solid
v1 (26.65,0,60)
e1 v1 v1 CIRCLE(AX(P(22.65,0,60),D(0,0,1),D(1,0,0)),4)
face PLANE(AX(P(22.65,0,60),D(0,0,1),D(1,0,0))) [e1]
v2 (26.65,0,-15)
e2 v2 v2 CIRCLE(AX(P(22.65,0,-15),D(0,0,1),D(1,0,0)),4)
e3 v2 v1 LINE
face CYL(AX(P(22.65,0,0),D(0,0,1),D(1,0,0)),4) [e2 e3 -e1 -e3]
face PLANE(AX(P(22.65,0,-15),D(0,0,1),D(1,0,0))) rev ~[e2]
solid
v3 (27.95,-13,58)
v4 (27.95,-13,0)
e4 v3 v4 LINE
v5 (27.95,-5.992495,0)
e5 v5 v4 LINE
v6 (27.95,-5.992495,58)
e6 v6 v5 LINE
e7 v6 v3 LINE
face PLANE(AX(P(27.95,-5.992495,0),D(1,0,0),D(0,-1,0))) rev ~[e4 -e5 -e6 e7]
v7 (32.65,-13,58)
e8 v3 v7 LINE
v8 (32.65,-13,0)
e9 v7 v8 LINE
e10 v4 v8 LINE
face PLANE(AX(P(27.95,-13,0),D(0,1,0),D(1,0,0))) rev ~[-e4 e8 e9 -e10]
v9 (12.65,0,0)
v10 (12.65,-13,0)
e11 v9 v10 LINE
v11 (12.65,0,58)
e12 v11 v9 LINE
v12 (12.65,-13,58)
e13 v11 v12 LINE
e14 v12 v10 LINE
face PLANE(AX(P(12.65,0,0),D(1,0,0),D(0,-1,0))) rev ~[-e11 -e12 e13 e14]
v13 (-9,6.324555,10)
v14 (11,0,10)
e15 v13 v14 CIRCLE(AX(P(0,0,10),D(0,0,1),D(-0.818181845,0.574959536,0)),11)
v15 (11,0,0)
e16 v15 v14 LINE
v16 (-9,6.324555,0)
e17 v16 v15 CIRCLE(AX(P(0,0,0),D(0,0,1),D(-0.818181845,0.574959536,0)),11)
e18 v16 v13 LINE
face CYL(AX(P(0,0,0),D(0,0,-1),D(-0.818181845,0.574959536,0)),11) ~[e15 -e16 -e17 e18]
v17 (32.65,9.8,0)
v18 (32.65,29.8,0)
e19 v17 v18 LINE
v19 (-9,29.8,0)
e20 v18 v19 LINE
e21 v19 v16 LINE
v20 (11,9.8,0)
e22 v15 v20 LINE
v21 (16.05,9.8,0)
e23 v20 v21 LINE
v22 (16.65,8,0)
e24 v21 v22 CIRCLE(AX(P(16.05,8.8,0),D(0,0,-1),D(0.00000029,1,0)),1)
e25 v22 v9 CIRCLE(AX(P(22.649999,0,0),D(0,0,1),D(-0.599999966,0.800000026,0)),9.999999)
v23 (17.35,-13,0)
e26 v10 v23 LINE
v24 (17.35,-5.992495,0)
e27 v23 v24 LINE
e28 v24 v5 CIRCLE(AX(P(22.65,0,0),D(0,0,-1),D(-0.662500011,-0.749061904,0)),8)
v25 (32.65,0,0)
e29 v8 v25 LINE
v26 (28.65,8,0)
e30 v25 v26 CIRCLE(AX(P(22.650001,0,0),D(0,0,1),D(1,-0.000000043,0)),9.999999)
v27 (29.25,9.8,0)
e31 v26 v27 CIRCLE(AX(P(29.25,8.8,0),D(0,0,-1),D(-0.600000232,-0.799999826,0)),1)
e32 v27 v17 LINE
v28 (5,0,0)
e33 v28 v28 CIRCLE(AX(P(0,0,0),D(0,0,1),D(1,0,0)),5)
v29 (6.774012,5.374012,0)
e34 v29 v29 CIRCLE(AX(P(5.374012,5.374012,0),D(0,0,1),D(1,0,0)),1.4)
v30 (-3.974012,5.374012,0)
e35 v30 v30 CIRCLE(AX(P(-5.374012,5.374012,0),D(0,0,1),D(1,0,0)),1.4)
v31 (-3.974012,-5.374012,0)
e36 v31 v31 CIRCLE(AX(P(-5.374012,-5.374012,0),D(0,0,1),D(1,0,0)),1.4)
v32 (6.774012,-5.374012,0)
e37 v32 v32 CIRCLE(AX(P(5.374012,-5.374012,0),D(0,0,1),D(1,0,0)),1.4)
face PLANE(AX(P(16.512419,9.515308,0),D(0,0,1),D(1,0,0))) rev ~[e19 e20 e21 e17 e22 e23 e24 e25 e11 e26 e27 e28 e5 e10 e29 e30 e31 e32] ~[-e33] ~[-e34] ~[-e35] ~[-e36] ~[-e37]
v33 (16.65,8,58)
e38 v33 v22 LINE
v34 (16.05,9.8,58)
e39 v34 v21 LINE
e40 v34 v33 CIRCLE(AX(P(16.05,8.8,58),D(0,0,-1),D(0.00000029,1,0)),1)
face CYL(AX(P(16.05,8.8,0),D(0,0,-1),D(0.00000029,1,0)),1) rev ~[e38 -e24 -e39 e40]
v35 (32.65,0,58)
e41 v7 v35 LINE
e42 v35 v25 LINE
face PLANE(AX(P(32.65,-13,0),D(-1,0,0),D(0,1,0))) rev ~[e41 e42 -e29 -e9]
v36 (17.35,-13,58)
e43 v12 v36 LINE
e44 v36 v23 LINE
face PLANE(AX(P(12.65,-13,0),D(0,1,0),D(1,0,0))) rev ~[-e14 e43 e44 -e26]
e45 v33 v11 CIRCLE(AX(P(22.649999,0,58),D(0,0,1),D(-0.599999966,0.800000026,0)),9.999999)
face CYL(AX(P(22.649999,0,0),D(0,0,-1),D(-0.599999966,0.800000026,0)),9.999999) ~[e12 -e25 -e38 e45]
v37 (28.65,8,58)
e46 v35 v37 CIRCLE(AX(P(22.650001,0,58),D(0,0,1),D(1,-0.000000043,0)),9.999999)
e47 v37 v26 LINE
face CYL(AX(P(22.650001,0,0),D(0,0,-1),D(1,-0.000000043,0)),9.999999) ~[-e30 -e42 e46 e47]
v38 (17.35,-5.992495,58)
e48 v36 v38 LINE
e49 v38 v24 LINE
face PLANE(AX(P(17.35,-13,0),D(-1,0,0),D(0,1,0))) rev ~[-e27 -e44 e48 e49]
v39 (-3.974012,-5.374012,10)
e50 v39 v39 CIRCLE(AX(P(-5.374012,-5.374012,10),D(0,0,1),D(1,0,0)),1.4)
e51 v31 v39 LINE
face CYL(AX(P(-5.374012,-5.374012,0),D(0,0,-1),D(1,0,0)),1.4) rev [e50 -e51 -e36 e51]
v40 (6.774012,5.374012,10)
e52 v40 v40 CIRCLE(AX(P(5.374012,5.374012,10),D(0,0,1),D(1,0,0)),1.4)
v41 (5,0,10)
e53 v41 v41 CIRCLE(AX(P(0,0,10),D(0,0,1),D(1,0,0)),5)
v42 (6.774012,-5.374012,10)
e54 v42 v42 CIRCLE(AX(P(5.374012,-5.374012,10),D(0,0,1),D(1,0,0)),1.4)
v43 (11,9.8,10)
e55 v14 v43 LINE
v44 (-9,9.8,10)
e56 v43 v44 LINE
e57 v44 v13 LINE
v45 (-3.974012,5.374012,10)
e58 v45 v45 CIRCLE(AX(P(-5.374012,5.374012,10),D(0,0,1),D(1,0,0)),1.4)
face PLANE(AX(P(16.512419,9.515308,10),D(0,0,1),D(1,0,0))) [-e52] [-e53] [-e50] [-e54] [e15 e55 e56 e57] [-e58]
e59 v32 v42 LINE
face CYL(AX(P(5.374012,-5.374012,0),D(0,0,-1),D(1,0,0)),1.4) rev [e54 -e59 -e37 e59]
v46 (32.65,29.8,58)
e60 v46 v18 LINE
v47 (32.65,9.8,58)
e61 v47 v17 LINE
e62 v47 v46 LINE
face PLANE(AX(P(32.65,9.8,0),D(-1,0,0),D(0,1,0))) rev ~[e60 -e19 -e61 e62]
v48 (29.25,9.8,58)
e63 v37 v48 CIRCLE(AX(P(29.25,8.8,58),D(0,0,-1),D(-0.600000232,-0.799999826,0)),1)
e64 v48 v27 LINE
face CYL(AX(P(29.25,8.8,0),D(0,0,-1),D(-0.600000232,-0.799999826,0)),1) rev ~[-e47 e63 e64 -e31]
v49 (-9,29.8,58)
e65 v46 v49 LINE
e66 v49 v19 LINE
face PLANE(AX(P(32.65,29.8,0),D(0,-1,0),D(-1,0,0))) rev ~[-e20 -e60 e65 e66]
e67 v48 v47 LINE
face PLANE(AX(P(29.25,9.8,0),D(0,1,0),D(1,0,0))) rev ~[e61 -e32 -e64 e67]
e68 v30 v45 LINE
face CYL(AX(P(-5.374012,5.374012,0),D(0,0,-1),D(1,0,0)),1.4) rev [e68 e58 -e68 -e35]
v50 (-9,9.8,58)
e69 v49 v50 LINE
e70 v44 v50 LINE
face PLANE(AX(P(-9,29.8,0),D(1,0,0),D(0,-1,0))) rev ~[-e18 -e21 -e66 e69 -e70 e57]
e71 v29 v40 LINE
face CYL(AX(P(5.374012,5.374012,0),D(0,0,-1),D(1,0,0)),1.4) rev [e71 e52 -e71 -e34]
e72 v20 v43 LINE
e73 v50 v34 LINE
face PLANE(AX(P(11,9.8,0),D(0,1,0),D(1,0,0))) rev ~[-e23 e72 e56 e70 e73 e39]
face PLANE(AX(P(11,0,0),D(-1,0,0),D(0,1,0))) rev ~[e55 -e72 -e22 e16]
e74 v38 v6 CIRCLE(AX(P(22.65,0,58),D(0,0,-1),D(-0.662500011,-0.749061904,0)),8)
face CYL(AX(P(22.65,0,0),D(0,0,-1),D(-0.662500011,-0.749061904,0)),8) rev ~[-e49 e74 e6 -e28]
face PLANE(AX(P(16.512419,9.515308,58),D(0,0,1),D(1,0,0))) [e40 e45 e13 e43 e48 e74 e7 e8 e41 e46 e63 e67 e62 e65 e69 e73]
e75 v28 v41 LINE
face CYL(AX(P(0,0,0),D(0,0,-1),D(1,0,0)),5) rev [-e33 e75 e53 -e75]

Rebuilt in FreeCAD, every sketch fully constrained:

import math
import FreeCAD as App
import Part
import Sketcher

doc = App.newDocument("Part")
params = doc.addObject("Spreadsheet::Sheet", "Params")
for row, (alias, value) in enumerate([
    ("sketch1_diameter", "10 mm"),
    ("sketch1_radius", "11 mm"),
    ("sketch1_radius2", "1 mm"),
    ("sketch1_radius3", "9.999999 mm"),
    ("sketch1_radius4", "8 mm"),
    ("pad1_length", "10 mm"),
    ("sketch2_radius", "1 mm"),
    ("sketch2_radius2", "9.999999 mm"),
    ("sketch2_radius3", "8 mm"),
    ("sketch2_height", "20 mm"),
    ("sketch2_height2", "13 mm"),
    ("pad2_length", "58 mm"),
    ("sketch3_diameter", "8 mm"),
    ("pad3_length", "60 mm"),
    ("pad3_length2", "15 mm"),
], start=1):
    params.set(f"A{row}", alias)
    params.set(f"B{row}", "=" + value)
    params.setAlias(f"B{row}", alias)

body = doc.addObject("PartDesign::Body", "Body")

sketch1 = body.newObject("Sketcher::SketchObject", "Sketch")
sketch1.AttachmentSupport = (doc.getObject("XY_Plane"), [""])
sketch1.MapMode = "FlatFace"
sketch1.addGeometry([
    Part.LineSegment(App.Vector(-9, 29.8, 0), App.Vector(-9, 6.324555, 0)),
    Part.ArcOfCircle(Part.Circle(App.Vector(0, 0, 0), App.Vector(0, 0, 1), 11), math.radians(144.903201), math.radians(359.999999)),
    Part.LineSegment(App.Vector(11, 0, 0), App.Vector(11, 9.8, 0)),
    Part.LineSegment(App.Vector(11, 9.8, 0), App.Vector(16.05, 9.8, 0)),
    Part.ArcOfCircle(Part.Circle(App.Vector(16.05, 8.8, 0), App.Vector(0, 0, 1), 1), math.radians(-53.130086), math.radians(89.999983)),
    Part.ArcOfCircle(Part.Circle(App.Vector(22.649999, 0, 0), App.Vector(0, 0, 1), 9.999999), math.radians(126.869895), math.radians(180.000002)),
    Part.LineSegment(App.Vector(12.65, 0, 0), App.Vector(12.65, -13, 0)),
    Part.LineSegment(App.Vector(12.65, -13, 0), App.Vector(17.35, -13, 0)),
    Part.LineSegment(App.Vector(17.35, -13, 0), App.Vector(17.35, -5.992495, 0)),
    Part.ArcOfCircle(Part.Circle(App.Vector(22.65, 0, 0), App.Vector(0, 0, 1), 8), math.radians(-48.509182), math.radians(228.509182)),
    Part.LineSegment(App.Vector(27.95, -5.992495, 0), App.Vector(27.95, -13, 0)),
    Part.LineSegment(App.Vector(27.95, -13, 0), App.Vector(32.65, -13, 0)),
    Part.LineSegment(App.Vector(32.65, -13, 0), App.Vector(32.65, 0, 0)),
    Part.ArcOfCircle(Part.Circle(App.Vector(22.650001, 0, 0), App.Vector(0, 0, 1), 9.999999), math.radians(-0.000002), math.radians(53.130105)),
    Part.ArcOfCircle(Part.Circle(App.Vector(29.25, 8.8, 0), App.Vector(0, 0, 1), 1), math.radians(90.000017), math.radians(233.130086)),
    Part.LineSegment(App.Vector(29.25, 9.8, 0), App.Vector(32.65, 9.8, 0)),
    Part.LineSegment(App.Vector(32.65, 9.8, 0), App.Vector(32.65, 29.8, 0)),
    Part.LineSegment(App.Vector(32.65, 29.8, 0), App.Vector(-9, 29.8, 0)),
    Part.Circle(App.Vector(-5.374012, -5.374012, 0), App.Vector(0, 0, 1), 1.4),
    Part.Circle(App.Vector(5.374012, -5.374012, 0), App.Vector(0, 0, 1), 1.4),
    Part.Circle(App.Vector(-5.374012, 5.374012, 0), App.Vector(0, 0, 1), 1.4),
    Part.Circle(App.Vector(0, 0, 0), App.Vector(0, 0, 1), 5),
    Part.Circle(App.Vector(5.374012, 5.374012, 0), App.Vector(0, 0, 1), 1.4),
], False)
sketch1.addConstraint([
    Sketcher.Constraint("Coincident", 0, 2, 1, 1),
    Sketcher.Constraint("Tangent", 1, 2, 2, 1),
    Sketcher.Constraint("Coincident", 2, 2, 3, 1),
    Sketcher.Constraint("Tangent", 3, 2, 4, 2),
    Sketcher.Constraint("Tangent", 4, 1, 5, 1),
    Sketcher.Constraint("Tangent", 5, 2, 6, 1),
    Sketcher.Constraint("Coincident", 6, 2, 7, 1),
    Sketcher.Constraint("Coincident", 7, 2, 8, 1),
    Sketcher.Constraint("Coincident", 8, 2, 9, 2),
    Sketcher.Constraint("Coincident", 9, 1, 10, 1),
    Sketcher.Constraint("Coincident", 10, 2, 11, 1),
    Sketcher.Constraint("Coincident", 11, 2, 12, 1),
    Sketcher.Constraint("Tangent", 12, 2, 13, 1),
    Sketcher.Constraint("Tangent", 13, 2, 14, 2),
    Sketcher.Constraint("Tangent", 14, 1, 15, 1),
    Sketcher.Constraint("Coincident", 15, 2, 16, 1),
    Sketcher.Constraint("Coincident", 16, 2, 17, 1),
    Sketcher.Constraint("Coincident", 17, 2, 0, 1),
    Sketcher.Constraint("Vertical", 0),
    Sketcher.Constraint("Vertical", 2),
    Sketcher.Constraint("Horizontal", 3),
    Sketcher.Constraint("Vertical", 6),
    Sketcher.Constraint("Horizontal", 7),
    Sketcher.Constraint("Vertical", 8),
    Sketcher.Constraint("Vertical", 10),
    Sketcher.Constraint("Horizontal", 11),
    Sketcher.Constraint("Vertical", 12),
    Sketcher.Constraint("Horizontal", 15),
    Sketcher.Constraint("Vertical", 16),
    Sketcher.Constraint("Horizontal", 17),
    Sketcher.Constraint("Coincident", 1, 3, -1, 1),
    Sketcher.Constraint("Coincident", 21, 3, -1, 1),
    Sketcher.Constraint("Coincident", 9, 3, 5, 3),
    Sketcher.Constraint("Coincident", 13, 3, 5, 3),
    Sketcher.Constraint("Equal", 5, 13),
    Sketcher.Constraint("Equal", 4, 14),
    Sketcher.Constraint("Equal", 18, 19),
    Sketcher.Constraint("Equal", 19, 20),
    Sketcher.Constraint("Equal", 20, 22),
    Sketcher.Constraint("Symmetric", 19, 3, 20, 3, -1, 1),
    Sketcher.Constraint("Symmetric", 18, 3, 22, 3, -1, 1),
    Sketcher.Constraint("Symmetric", 18, 3, 19, 3, -2),
    Sketcher.Constraint("PointOnObject", 5, 3, -1),
    Sketcher.Constraint("Horizontal", 4, 3, 14, 3),
    Sketcher.Constraint("Horizontal", 8, 2, 9, 1),
    Sketcher.Constraint("Horizontal", 7, 2, 10, 2),
    Sketcher.Constraint("Vertical", 12, 2, 15, 2),
    Sketcher.Constraint("Diameter", 21, 10.0),
    Sketcher.Constraint("Radius", 1, 11.0),
    Sketcher.Constraint("Radius", 4, 1.0),
    Sketcher.Constraint("Radius", 5, 9.999999),
    Sketcher.Constraint("Radius", 9, 8.0),
    Sketcher.Constraint("Diameter", 18, 2.8),
    Sketcher.Constraint("DistanceY", 6, 2, 6, 1, 13.0),
    Sketcher.Constraint("DistanceY", 16, 1, 16, 2, 20.0),
    Sketcher.Constraint("DistanceX", 7, 1, 7, 2, 4.7),
    Sketcher.Constraint("DistanceX", 15, 1, 15, 2, 3.4),
    Sketcher.Constraint("DistanceX", 0, 2, -1, 1, 9.0),
    Sketcher.Constraint("DistanceX", 3, 1, 3, 2, 5.05),
    Sketcher.Constraint("DistanceX", 18, 3, -1, 1, 5.374012),
    Sketcher.Constraint("DistanceY", 18, 3, -1, 1, 5.374012),
])
sketch1.setExpression("Constraints[47]", "Params.sketch1_diameter")
sketch1.setExpression("Constraints[48]", "Params.sketch1_radius")
sketch1.setExpression("Constraints[49]", "Params.sketch1_radius2")
sketch1.setExpression("Constraints[50]", "Params.sketch1_radius3")
sketch1.setExpression("Constraints[51]", "Params.sketch1_radius4")
pad1 = body.newObject("PartDesign::Pad", "Pad")
pad1.Profile = sketch1
pad1.setExpression("Length", "Params.pad1_length")

sketch2 = body.newObject("Sketcher::SketchObject", "Sketch001")
sketch2.AttachmentSupport = (doc.getObject("XY_Plane"), [""])
sketch2.MapMode = "FlatFace"
sketch2.addGeometry([
    Part.LineSegment(App.Vector(-9, 29.8, 0), App.Vector(-9, 9.8, 0)),
    Part.LineSegment(App.Vector(-9, 9.8, 0), App.Vector(16.05, 9.8, 0)),
    Part.ArcOfCircle(Part.Circle(App.Vector(16.05, 8.8, 0), App.Vector(0, 0, 1), 1), math.radians(-53.130086), math.radians(89.999983)),
    Part.ArcOfCircle(Part.Circle(App.Vector(22.649999, 0, 0), App.Vector(0, 0, 1), 9.999999), math.radians(126.869895), math.radians(180.000002)),
    Part.LineSegment(App.Vector(12.65, 0, 0), App.Vector(12.65, -13, 0)),
    Part.LineSegment(App.Vector(12.65, -13, 0), App.Vector(17.35, -13, 0)),
    Part.LineSegment(App.Vector(17.35, -13, 0), App.Vector(17.35, -5.992495, 0)),
    Part.ArcOfCircle(Part.Circle(App.Vector(22.65, 0, 0), App.Vector(0, 0, 1), 8), math.radians(-48.509182), math.radians(228.509182)),
    Part.LineSegment(App.Vector(27.95, -5.992495, 0), App.Vector(27.95, -13, 0)),
    Part.LineSegment(App.Vector(27.95, -13, 0), App.Vector(32.65, -13, 0)),
    Part.LineSegment(App.Vector(32.65, -13, 0), App.Vector(32.65, 0, 0)),
    Part.ArcOfCircle(Part.Circle(App.Vector(22.650001, 0, 0), App.Vector(0, 0, 1), 9.999999), math.radians(-0.000002), math.radians(53.130105)),
    Part.ArcOfCircle(Part.Circle(App.Vector(29.25, 8.8, 0), App.Vector(0, 0, 1), 1), math.radians(90.000017), math.radians(233.130086)),
    Part.LineSegment(App.Vector(29.25, 9.8, 0), App.Vector(32.65, 9.8, 0)),
    Part.LineSegment(App.Vector(32.65, 9.8, 0), App.Vector(32.65, 29.8, 0)),
    Part.LineSegment(App.Vector(32.65, 29.8, 0), App.Vector(-9, 29.8, 0)),
], False)
sketch2.addConstraint([
    Sketcher.Constraint("Coincident", 0, 2, 1, 1),
    Sketcher.Constraint("Tangent", 1, 2, 2, 2),
    Sketcher.Constraint("Tangent", 2, 1, 3, 1),
    Sketcher.Constraint("Tangent", 3, 2, 4, 1),
    Sketcher.Constraint("Coincident", 4, 2, 5, 1),
    Sketcher.Constraint("Coincident", 5, 2, 6, 1),
    Sketcher.Constraint("Coincident", 6, 2, 7, 2),
    Sketcher.Constraint("Coincident", 7, 1, 8, 1),
    Sketcher.Constraint("Coincident", 8, 2, 9, 1),
    Sketcher.Constraint("Coincident", 9, 2, 10, 1),
    Sketcher.Constraint("Tangent", 10, 2, 11, 1),
    Sketcher.Constraint("Tangent", 11, 2, 12, 2),
    Sketcher.Constraint("Tangent", 12, 1, 13, 1),
    Sketcher.Constraint("Coincident", 13, 2, 14, 1),
    Sketcher.Constraint("Coincident", 14, 2, 15, 1),
    Sketcher.Constraint("Coincident", 15, 2, 0, 1),
    Sketcher.Constraint("Vertical", 0),
    Sketcher.Constraint("Horizontal", 1),
    Sketcher.Constraint("Vertical", 4),
    Sketcher.Constraint("Horizontal", 5),
    Sketcher.Constraint("Vertical", 6),
    Sketcher.Constraint("Vertical", 8),
    Sketcher.Constraint("Horizontal", 9),
    Sketcher.Constraint("Vertical", 10),
    Sketcher.Constraint("Horizontal", 13),
    Sketcher.Constraint("Vertical", 14),
    Sketcher.Constraint("Horizontal", 15),
    Sketcher.Constraint("Coincident", 7, 3, 3, 3),
    Sketcher.Constraint("Coincident", 11, 3, 3, 3),
    Sketcher.Constraint("Equal", 3, 11),
    Sketcher.Constraint("Equal", 2, 12),
    Sketcher.Constraint("PointOnObject", 3, 3, -1),
    Sketcher.Constraint("Horizontal", 2, 3, 12, 3),
    Sketcher.Constraint("Horizontal", 6, 2, 7, 1),
    Sketcher.Constraint("Horizontal", 5, 2, 8, 2),
    Sketcher.Constraint("Vertical", 10, 2, 13, 2),
    Sketcher.Constraint("Radius", 2, 1.0),
    Sketcher.Constraint("Radius", 3, 9.999999),
    Sketcher.Constraint("Radius", 7, 8.0),
    Sketcher.Constraint("DistanceY", 0, 2, 0, 1, 20.0),
    Sketcher.Constraint("DistanceY", 4, 2, 4, 1, 13.0),
    Sketcher.Constraint("DistanceX", 5, 1, 5, 2, 4.7),
    Sketcher.Constraint("DistanceX", 13, 1, 13, 2, 3.4),
    Sketcher.Constraint("DistanceX", 0, 2, -1, 1, 9.0),
    Sketcher.Constraint("DistanceX", 1, 1, 1, 2, 25.05),
])
sketch2.setExpression("Constraints[36]", "Params.sketch2_radius")
sketch2.setExpression("Constraints[37]", "Params.sketch2_radius2")
sketch2.setExpression("Constraints[38]", "Params.sketch2_radius3")
sketch2.setExpression("Constraints[39]", "Params.sketch2_height")
sketch2.setExpression("Constraints[40]", "Params.sketch2_height2")
pad2 = body.newObject("PartDesign::Pad", "Pad001")
pad2.Profile = sketch2
pad2.setExpression("Length", "Params.pad2_length")
body2 = doc.addObject("PartDesign::Body", "Body001")

sketch3 = body2.newObject("Sketcher::SketchObject", "Sketch002")
sketch3.AttachmentSupport = (doc.getObject("XY_Plane001"), [""])
sketch3.MapMode = "FlatFace"
sketch3.addGeometry(Part.Circle(App.Vector(22.65, 0, 0), App.Vector(0, 0, 1), 4), False)
sketch3.addConstraint([
    Sketcher.Constraint("PointOnObject", 0, 3, -1),
    Sketcher.Constraint("Diameter", 0, 8.0),
    Sketcher.Constraint("DistanceX", -1, 1, 0, 3, 22.65),
])
sketch3.setExpression("Constraints[1]", "Params.sketch3_diameter")
pad3 = body2.newObject("PartDesign::Pad", "Pad002")
pad3.Profile = sketch3
pad3.Type = "TwoLengths"
pad3.setExpression("Length", "Params.pad3_length")
pad3.setExpression("Length2", "Params.pad3_length2")

doc.recompute()
